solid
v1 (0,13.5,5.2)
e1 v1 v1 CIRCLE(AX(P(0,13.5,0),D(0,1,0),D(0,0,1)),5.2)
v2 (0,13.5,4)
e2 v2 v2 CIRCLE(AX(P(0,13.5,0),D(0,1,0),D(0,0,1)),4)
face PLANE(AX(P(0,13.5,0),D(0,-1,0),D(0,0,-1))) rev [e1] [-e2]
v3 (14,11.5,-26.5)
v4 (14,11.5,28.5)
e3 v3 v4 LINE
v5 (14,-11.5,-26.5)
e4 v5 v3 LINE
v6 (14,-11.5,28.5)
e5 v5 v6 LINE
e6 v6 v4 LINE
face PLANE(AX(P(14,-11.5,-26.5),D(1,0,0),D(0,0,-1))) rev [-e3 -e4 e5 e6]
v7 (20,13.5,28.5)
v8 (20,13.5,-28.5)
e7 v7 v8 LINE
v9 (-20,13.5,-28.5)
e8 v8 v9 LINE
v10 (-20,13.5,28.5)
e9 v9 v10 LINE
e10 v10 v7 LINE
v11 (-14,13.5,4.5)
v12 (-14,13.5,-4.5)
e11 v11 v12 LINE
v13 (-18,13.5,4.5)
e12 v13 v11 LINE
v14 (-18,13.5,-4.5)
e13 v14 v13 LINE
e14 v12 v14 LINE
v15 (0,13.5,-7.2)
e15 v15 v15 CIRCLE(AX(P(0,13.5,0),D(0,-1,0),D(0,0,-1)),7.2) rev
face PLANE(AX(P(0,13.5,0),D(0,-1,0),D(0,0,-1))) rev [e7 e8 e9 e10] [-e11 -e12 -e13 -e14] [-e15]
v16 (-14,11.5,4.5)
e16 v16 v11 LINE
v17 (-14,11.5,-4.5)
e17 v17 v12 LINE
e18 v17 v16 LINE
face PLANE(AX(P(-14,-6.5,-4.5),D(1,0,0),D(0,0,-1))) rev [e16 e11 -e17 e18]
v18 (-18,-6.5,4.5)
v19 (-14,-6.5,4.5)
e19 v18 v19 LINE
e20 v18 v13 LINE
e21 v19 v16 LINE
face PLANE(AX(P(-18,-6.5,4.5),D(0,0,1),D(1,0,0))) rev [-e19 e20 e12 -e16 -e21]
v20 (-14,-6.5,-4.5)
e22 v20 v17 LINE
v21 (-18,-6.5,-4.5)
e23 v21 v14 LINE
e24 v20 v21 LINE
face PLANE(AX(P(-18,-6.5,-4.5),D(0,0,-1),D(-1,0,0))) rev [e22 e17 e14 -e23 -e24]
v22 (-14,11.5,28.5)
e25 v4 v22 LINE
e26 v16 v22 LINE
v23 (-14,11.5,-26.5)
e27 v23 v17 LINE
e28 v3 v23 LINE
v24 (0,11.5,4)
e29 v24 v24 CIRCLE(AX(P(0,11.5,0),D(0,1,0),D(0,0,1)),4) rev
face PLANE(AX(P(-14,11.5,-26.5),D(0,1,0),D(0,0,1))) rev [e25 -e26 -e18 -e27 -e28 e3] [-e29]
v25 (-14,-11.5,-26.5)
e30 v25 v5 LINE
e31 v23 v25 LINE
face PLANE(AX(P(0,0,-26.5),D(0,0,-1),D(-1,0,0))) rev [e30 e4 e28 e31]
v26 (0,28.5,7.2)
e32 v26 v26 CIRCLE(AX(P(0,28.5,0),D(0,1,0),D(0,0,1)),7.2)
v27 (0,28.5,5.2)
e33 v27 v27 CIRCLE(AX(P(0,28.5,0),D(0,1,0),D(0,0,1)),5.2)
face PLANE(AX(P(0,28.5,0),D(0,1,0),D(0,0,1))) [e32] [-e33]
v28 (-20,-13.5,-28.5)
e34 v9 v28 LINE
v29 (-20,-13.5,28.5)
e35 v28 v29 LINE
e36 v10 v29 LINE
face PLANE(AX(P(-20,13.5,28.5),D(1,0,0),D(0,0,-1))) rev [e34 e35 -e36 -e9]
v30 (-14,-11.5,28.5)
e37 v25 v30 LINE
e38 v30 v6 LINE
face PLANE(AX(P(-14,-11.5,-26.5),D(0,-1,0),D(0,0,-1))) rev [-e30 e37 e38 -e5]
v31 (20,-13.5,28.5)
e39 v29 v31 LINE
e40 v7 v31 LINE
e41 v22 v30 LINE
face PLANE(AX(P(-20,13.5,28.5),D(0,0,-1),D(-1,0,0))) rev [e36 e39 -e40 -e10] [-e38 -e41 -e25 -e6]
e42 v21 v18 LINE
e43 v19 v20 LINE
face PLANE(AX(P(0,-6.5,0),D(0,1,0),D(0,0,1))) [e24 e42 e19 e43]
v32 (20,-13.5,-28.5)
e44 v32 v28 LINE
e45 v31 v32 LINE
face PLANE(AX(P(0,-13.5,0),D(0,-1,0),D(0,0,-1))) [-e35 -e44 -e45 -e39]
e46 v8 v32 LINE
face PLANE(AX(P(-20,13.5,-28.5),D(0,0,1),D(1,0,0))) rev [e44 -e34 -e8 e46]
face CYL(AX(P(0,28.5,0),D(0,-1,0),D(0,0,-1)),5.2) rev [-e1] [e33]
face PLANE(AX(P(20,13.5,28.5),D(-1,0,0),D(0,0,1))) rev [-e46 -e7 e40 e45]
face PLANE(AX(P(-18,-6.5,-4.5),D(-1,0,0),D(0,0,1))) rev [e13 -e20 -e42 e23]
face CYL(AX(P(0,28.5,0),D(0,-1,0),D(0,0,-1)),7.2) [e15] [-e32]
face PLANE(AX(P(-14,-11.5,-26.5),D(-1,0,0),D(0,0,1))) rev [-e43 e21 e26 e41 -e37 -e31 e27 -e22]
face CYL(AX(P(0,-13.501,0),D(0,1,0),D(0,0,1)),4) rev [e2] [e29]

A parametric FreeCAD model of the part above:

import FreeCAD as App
import Part
import Sketcher
from FreeCAD import Vector
Q = App.Units.Quantity


def add_polygon(sketch, points):
    """Adds a closed chain of lines whose ends are joined by coincident constraints."""
    first, n = sketch.GeometryCount, len(points)
    for a, b in zip(points, points[1:] + points[:1]):
        sketch.addGeometry(Part.LineSegment(App.Vector(*a, 0), App.Vector(*b, 0)), False)
    for i in range(n):
        sketch.addConstraint(Sketcher.Constraint("Coincident", first + i, 2, first + (i + 1) % n, 1))

doc = App.newDocument("Part")
body = doc.addObject("PartDesign::Body", "Body")

sketch1 = doc.addObject("Sketcher::SketchObject", "Sketch")
body.addObject(sketch1)
sketch1.AttachmentSupport = (doc.XZ_Plane, [""])
sketch1.MapMode = "FlatFace"
add_polygon(sketch1, [(-20, -28), (-20, 28), (20, 28), (20, -28)])
sketch1.addConstraint([
    Sketcher.Constraint("Vertical", 0),
    Sketcher.Constraint("Horizontal", 1),
    Sketcher.Constraint("Vertical", 2),
    Sketcher.Constraint("Horizontal", 3),
    Sketcher.Constraint("Symmetric", 0, 2, 2, 2, -1, 1),
    Sketcher.Constraint("DistanceX", 1, 1, 1, 2, Q("40 mm")),
    Sketcher.Constraint("DistanceY", 0, 1, 0, 2, Q("57 mm")),
])
pad1 = doc.addObject("PartDesign::Pad", "Pad")
body.addObject(pad1)
pad1.Profile = sketch1
pad1.Length = 27
pad1.Midplane = True

sketch2 = doc.addObject("Sketcher::SketchObject", "Sketch001")
body.addObject(sketch2)
sketch2.AttachmentSupport = (doc.XY_Plane, [""])
sketch2.MapMode = "FlatFace"
sketch2.AttachmentOffset = App.Placement(Vector(0, 0, 28.5), App.Rotation())
add_polygon(sketch2, [(-14, 12), (-14, -12), (14, -12), (14, 12)])
sketch2.addConstraint([
    Sketcher.Constraint("Vertical", 0),
    Sketcher.Constraint("Horizontal", 1),
    Sketcher.Constraint("Vertical", 2),
    Sketcher.Constraint("Horizontal", 3),
    Sketcher.Constraint("Symmetric", 0, 2, 2, 2, -1, 1),
    Sketcher.Constraint("DistanceX", 1, 1, 1, 2, Q("28 mm")),
    Sketcher.Constraint("DistanceY", 0, 2, 0, 1, Q("23 mm")),
])
pocket1 = doc.addObject("PartDesign::Pocket", "Pocket")
body.addObject(pocket1)
pocket1.Profile = sketch2
pocket1.Length = 55

sketch3 = doc.addObject("Sketcher::SketchObject", "Sketch002")
body.addObject(sketch3)
sketch3.AttachmentSupport = (doc.XZ_Plane, [""])
sketch3.MapMode = "FlatFace"
sketch3.AttachmentOffset = App.Placement(Vector(0, 0, -13.5), App.Rotation())
sketch3.addGeometry(Part.Circle(Vector(0, 0, 0), Vector(0, 0, 1), 4), False)
sketch3.addConstraint([
    Sketcher.Constraint("Coincident", 0, 3, -1, 1),
    Sketcher.Constraint("Diameter", 0, Q("8 mm")),
])
pocket2 = doc.addObject("PartDesign::Pocket", "Pocket001")
body.addObject(pocket2)
pocket2.Profile = sketch3
pocket2.Type = "UpToFirst"
pocket2.Reversed = True

sketch4 = doc.addObject("Sketcher::SketchObject", "Sketch003")
body.addObject(sketch4)
sketch4.AttachmentSupport = (doc.XZ_Plane, [""])
sketch4.MapMode = "FlatFace"
sketch4.AttachmentOffset = App.Placement(Vector(0, 0, -13.5), App.Rotation())
sketch4.addGeometry([
    Part.Circle(Vector(0, 0, 0), Vector(0, 0, 1), 7),
    Part.Circle(Vector(0, 0, 0), Vector(0, 0, 1), 5),
], False)
sketch4.addConstraint([
    Sketcher.Constraint("Coincident", 0, 3, -1, 1),
    Sketcher.Constraint("Coincident", 1, 3, -1, 1),
    Sketcher.Constraint("Diameter", 0, Q("14.4 mm")),
    Sketcher.Constraint("Diameter", 1, Q("10.4 mm")),
])
pad2 = doc.addObject("PartDesign::Pad", "Pad001")
body.addObject(pad2)
pad2.Profile = sketch4
pad2.Length = 15
pad2.Reversed = True

sketch5 = doc.addObject("Sketcher::SketchObject", "Sketch004")
body.addObject(sketch5)
sketch5.AttachmentSupport = (doc.XZ_Plane, [""])
sketch5.MapMode = "FlatFace"
sketch5.AttachmentOffset = App.Placement(Vector(0, 0, -13.5), App.Rotation())
add_polygon(sketch5, [(-18, -4.5), (-18, 4.5), (-14, 4.5), (-14, -4.5)])
sketch5.addConstraint([
    Sketcher.Constraint("Vertical", 0),
    Sketcher.Constraint("Horizontal", 1),
    Sketcher.Constraint("Vertical", 2),
    Sketcher.Constraint("Horizontal", 3),
    Sketcher.Constraint("DistanceX", 1, 1, 1, 2, Q("4 mm")),
    Sketcher.Constraint("DistanceY", 0, 1, 0, 2, Q("9 mm")),
    Sketcher.Constraint("DistanceX", 0, 2, -1, 1, Q("18 mm")),
    Sketcher.Constraint("DistanceY", -1, 1, 0, 2, Q("4.5 mm")),
])
pocket3 = doc.addObject("PartDesign::Pocket", "Pocket002")
body.addObject(pocket3)
pocket3.Profile = sketch5
pocket3.Length = 20
pocket3.Reversed = True

doc.recompute()
